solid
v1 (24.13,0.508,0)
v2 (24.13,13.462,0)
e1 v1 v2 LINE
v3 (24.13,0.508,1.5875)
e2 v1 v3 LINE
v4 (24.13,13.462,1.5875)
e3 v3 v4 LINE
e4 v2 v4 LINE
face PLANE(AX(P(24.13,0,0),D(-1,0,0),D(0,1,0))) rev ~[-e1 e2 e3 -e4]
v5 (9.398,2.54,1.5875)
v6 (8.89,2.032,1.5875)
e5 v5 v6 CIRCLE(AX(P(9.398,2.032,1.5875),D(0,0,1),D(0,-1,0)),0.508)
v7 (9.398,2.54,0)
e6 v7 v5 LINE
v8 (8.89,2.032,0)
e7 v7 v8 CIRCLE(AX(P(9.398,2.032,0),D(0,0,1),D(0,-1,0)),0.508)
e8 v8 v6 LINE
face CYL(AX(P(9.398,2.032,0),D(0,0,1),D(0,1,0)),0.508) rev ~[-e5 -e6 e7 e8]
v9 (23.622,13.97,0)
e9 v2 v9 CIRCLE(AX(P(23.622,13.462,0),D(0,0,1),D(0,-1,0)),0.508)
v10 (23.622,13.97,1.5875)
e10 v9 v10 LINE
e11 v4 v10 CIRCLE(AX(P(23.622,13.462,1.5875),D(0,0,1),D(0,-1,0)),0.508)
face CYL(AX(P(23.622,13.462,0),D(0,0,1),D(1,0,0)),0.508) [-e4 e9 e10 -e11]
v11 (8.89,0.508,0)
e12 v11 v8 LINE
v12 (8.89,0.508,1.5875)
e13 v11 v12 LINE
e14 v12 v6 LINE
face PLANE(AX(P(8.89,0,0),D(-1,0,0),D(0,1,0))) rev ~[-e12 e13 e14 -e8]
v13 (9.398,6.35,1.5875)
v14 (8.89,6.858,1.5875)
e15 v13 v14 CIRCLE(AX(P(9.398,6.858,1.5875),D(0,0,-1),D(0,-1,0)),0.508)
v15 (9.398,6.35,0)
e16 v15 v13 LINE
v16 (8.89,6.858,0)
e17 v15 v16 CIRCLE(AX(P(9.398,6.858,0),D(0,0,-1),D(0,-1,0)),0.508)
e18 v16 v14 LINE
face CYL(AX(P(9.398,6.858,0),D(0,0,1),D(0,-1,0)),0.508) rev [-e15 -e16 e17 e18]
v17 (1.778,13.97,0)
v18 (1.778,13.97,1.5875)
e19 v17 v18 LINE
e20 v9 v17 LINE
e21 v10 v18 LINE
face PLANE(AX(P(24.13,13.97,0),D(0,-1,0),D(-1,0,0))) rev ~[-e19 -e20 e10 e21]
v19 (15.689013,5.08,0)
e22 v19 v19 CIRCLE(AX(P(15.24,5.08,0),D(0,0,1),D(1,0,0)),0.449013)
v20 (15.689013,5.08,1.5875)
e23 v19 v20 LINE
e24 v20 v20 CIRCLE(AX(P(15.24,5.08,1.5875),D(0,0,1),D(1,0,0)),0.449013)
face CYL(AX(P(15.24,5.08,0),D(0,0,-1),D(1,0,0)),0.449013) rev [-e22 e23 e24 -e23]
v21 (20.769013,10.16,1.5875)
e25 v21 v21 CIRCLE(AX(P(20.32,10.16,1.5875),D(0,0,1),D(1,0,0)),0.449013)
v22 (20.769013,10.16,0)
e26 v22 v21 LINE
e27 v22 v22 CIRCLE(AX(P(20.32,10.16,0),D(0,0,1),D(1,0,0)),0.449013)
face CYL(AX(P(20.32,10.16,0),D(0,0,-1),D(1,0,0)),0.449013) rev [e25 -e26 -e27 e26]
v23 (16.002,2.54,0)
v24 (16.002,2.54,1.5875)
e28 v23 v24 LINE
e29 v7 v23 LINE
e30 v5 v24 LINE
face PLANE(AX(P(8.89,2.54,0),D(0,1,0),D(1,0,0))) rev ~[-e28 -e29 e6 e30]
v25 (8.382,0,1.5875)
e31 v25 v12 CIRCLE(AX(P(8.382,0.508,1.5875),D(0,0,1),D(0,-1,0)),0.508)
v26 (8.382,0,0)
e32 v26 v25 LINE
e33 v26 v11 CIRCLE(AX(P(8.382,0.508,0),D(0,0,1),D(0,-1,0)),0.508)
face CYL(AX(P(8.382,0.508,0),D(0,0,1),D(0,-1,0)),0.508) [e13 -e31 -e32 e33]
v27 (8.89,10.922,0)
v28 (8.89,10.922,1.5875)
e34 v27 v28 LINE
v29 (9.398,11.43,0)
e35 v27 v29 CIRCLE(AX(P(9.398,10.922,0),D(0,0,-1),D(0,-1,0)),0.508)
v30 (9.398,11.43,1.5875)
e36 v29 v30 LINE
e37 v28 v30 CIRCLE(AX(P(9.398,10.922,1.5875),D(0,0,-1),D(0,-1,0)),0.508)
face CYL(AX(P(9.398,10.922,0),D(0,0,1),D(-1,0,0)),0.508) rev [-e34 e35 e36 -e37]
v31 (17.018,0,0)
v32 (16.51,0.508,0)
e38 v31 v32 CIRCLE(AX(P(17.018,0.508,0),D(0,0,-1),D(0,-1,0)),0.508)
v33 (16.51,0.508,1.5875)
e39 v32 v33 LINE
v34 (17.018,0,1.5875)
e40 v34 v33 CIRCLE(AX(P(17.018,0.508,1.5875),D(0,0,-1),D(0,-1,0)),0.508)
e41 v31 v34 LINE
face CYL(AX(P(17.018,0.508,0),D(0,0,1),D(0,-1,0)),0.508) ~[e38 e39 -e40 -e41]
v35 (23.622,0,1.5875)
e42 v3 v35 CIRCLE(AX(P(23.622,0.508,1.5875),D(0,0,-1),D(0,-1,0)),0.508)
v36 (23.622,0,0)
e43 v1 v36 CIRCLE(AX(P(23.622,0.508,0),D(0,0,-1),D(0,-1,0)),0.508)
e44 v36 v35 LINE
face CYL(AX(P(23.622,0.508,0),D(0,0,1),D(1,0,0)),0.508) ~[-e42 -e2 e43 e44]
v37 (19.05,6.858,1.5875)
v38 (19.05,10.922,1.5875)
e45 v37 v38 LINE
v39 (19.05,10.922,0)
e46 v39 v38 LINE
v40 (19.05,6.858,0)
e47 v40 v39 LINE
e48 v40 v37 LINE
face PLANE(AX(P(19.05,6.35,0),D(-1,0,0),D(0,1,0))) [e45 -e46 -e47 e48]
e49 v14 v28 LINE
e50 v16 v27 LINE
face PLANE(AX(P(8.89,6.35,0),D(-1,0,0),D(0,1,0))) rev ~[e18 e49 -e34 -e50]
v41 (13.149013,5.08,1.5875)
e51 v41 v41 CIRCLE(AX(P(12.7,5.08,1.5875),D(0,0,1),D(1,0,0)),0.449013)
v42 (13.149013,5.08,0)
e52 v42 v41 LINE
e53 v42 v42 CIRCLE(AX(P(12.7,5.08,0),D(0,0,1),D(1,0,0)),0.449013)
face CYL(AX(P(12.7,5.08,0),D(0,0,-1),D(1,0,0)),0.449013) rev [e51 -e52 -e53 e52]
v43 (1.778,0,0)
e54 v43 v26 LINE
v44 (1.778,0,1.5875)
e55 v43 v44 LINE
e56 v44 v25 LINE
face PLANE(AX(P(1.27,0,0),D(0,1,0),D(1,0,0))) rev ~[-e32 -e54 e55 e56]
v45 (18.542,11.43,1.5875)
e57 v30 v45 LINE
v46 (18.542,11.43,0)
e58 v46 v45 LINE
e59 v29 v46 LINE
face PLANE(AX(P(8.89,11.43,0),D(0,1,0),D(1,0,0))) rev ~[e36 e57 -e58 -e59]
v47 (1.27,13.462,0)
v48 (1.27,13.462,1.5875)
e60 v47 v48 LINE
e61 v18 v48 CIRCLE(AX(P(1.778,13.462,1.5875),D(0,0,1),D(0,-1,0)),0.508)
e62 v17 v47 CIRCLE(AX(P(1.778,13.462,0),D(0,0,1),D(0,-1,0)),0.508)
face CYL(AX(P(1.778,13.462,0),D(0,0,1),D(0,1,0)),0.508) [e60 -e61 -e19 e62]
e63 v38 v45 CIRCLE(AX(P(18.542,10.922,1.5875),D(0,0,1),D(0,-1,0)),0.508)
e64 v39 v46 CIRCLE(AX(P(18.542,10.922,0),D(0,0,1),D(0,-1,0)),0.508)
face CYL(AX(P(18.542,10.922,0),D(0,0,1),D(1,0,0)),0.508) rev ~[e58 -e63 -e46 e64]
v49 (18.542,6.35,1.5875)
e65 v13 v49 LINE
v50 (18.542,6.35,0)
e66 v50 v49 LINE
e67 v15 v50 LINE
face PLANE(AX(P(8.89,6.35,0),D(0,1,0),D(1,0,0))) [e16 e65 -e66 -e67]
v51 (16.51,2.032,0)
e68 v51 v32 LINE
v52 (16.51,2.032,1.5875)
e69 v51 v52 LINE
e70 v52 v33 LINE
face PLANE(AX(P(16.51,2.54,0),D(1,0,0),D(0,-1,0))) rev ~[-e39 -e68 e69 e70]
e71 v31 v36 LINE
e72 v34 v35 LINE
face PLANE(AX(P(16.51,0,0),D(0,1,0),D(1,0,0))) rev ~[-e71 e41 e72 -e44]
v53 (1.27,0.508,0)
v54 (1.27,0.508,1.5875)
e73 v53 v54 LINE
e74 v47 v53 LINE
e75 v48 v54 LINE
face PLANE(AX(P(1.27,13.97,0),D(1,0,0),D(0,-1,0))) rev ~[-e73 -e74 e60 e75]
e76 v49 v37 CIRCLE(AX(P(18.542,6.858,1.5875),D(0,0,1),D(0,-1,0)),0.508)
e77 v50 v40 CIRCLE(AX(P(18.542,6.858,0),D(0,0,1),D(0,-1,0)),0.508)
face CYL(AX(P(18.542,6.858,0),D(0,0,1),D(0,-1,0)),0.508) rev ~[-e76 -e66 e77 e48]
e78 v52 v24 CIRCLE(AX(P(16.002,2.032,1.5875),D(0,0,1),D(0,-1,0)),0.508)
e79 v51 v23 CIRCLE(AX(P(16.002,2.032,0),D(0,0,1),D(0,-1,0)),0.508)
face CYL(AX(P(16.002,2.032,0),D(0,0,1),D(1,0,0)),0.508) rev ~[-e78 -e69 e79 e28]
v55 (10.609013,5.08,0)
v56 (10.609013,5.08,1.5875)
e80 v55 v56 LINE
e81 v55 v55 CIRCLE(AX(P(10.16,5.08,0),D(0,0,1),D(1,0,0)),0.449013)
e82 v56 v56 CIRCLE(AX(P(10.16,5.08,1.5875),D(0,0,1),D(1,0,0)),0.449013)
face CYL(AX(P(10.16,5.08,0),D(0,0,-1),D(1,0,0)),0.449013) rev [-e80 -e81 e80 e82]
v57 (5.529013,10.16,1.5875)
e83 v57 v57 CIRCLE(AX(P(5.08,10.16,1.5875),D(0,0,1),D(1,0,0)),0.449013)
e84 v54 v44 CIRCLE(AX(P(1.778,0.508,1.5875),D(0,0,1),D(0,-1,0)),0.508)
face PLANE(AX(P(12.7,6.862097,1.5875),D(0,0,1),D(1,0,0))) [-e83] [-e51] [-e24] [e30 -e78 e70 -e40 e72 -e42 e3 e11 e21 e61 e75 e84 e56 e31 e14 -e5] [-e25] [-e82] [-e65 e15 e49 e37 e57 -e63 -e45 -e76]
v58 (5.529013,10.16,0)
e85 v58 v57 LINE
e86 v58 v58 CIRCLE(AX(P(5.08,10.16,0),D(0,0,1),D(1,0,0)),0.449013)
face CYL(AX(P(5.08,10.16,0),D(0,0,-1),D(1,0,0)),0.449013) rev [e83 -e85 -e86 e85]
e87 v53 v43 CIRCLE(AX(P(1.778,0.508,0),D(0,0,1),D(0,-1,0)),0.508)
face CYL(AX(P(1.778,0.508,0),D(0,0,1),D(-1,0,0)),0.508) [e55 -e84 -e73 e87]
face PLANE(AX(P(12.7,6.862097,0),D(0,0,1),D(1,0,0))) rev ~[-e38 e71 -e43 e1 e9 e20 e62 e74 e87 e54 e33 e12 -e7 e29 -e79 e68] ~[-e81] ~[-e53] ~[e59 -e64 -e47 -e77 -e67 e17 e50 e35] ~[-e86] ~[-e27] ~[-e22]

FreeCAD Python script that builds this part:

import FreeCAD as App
import Part
import Sketcher
from FreeCAD import Vector
Q = App.Units.Quantity


def edges_at(feature, points):
    """Names of the edges that pass closest to the given points."""
    edges = feature.Shape.Edges
    near = lambda p: min(range(len(edges)), key=lambda i: edges[i].distToShape(Part.Vertex(*p))[0])
    return sorted({f"Edge{near(p) + 1}" for p in points})

doc = App.newDocument("Part")
params = doc.addObject("Spreadsheet::Sheet", "Params")
for row, (alias, value) in enumerate([
    ("sketch1_width", "0.9 in"),
    ("sketch1_width2", "0.4 in"),
    ("sketch1_height", "0.1 in"),
    ("sketch1_height2", "0.2 in"),
    ("sketch1_height3", "0.55 in"),
    ("pad1_length", "0.0625 in"),
    ("fillet_radius", "0.02 in"),
], start=1):
    params.set(f"A{row}", alias)
    params.set(f"B{row}", "=" + value)
    params.setAlias(f"B{row}", alias)

body = doc.addObject("PartDesign::Body", "Body")

sketch1 = body.newObject("Sketcher::SketchObject", "Sketch")
sketch1.AttachmentSupport = (doc.getObject("XY_Plane"), [""])
sketch1.MapMode = "FlatFace"
sketch1.addGeometry(Part.LineSegment(Vector(24.13, 0, 0), Vector(24.13, 13.97, 0)), False)
sketch1.addGeometry(Part.LineSegment(Vector(24.13, 13.97, 0), Vector(1.27, 13.97, 0)), False)
sketch1.addGeometry(Part.LineSegment(Vector(1.27, 13.97, 0), Vector(1.27, 0, 0)), False)
sketch1.addGeometry(Part.LineSegment(Vector(1.27, 0, 0), Vector(8.89, 0, 0)), False)
sketch1.addGeometry(Part.LineSegment(Vector(8.89, 0, 0), Vector(8.89, 2.54, 0)), False)
sketch1.addGeometry(Part.LineSegment(Vector(8.89, 2.54, 0), Vector(16.51, 2.54, 0)), False)
sketch1.addGeometry(Part.LineSegment(Vector(16.51, 2.54, 0), Vector(16.51, 0, 0)), False)
sketch1.addGeometry(Part.LineSegment(Vector(16.51, 0, 0), Vector(24.13, 0, 0)), False)
sketch1.addGeometry(Part.Circle(Vector(10.16, 5.08, 0), Vector(0, 0, 1), 0.449013), False)
sketch1.addGeometry(Part.Circle(Vector(12.7, 5.08, 0), Vector(0, 0, 1), 0.449013), False)
sketch1.addGeometry(Part.Circle(Vector(15.24, 5.08, 0), Vector(0, 0, 1), 0.449013), False)
sketch1.addGeometry(Part.Circle(Vector(5.08, 10.16, 0), Vector(0, 0, 1), 0.449013), False)
sketch1.addGeometry(Part.LineSegment(Vector(19.05, 6.35, 0), Vector(8.89, 6.35, 0)), False)
sketch1.addGeometry(Part.LineSegment(Vector(8.89, 6.35, 0), Vector(8.89, 11.43, 0)), False)
sketch1.addGeometry(Part.LineSegment(Vector(8.89, 11.43, 0), Vector(19.05, 11.43, 0)), False)
sketch1.addGeometry(Part.LineSegment(Vector(19.05, 11.43, 0), Vector(19.05, 6.35, 0)), False)
sketch1.addGeometry(Part.Circle(Vector(20.32, 10.16, 0), Vector(0, 0, 1), 0.449013), False)
sketch1.addConstraint(Sketcher.Constraint("Coincident", 0, 2, 1, 1))
sketch1.addConstraint(Sketcher.Constraint("Coincident", 1, 2, 2, 1))
sketch1.addConstraint(Sketcher.Constraint("Coincident", 2, 2, 3, 1))
sketch1.addConstraint(Sketcher.Constraint("Coincident", 3, 2, 4, 1))
sketch1.addConstraint(Sketcher.Constraint("Coincident", 4, 2, 5, 1))
sketch1.addConstraint(Sketcher.Constraint("Coincident", 5, 2, 6, 1))
sketch1.addConstraint(Sketcher.Constraint("Coincident", 6, 2, 7, 1))
sketch1.addConstraint(Sketcher.Constraint("Coincident", 7, 2, 0, 1))
sketch1.addConstraint(Sketcher.Constraint("Coincident", 12, 2, 13, 1))
sketch1.addConstraint(Sketcher.Constraint("Coincident", 13, 2, 14, 1))
sketch1.addConstraint(Sketcher.Constraint("Coincident", 14, 2, 15, 1))
sketch1.addConstraint(Sketcher.Constraint("Coincident", 15, 2, 12, 1))
sketch1.addConstraint(Sketcher.Constraint("Vertical", 0))
sketch1.addConstraint(Sketcher.Constraint("Horizontal", 1))
sketch1.addConstraint(Sketcher.Constraint("Vertical", 2))
sketch1.addConstraint(Sketcher.Constraint("Horizontal", 3))
sketch1.addConstraint(Sketcher.Constraint("Vertical", 4))
sketch1.addConstraint(Sketcher.Constraint("Horizontal", 5))
sketch1.addConstraint(Sketcher.Constraint("Vertical", 6))
sketch1.addConstraint(Sketcher.Constraint("Horizontal", 7))
sketch1.addConstraint(Sketcher.Constraint("Horizontal", 12))
sketch1.addConstraint(Sketcher.Constraint("Vertical", 13))
sketch1.addConstraint(Sketcher.Constraint("Horizontal", 14))
sketch1.addConstraint(Sketcher.Constraint("Vertical", 15))
sketch1.addConstraint(Sketcher.Constraint("Equal", 8, 9))
sketch1.addConstraint(Sketcher.Constraint("Equal", 9, 10))
sketch1.addConstraint(Sketcher.Constraint("Equal", 10, 11))
sketch1.addConstraint(Sketcher.Constraint("Equal", 11, 16))
sketch1.addConstraint(Sketcher.Constraint("PointOnObject", 2, 2, -1))
sketch1.addConstraint(Sketcher.Constraint("PointOnObject", 6, 2, -1))
sketch1.addConstraint(Sketcher.Constraint("Horizontal", 8, 3, 9, 3))
sketch1.addConstraint(Sketcher.Constraint("Horizontal", 9, 3, 10, 3))
sketch1.addConstraint(Sketcher.Constraint("Horizontal", 11, 3, 16, 3))
sketch1.addConstraint(Sketcher.Constraint("Vertical", 4, 2, 12, 2))
sketch1.addConstraint(Sketcher.Constraint("Equal", 3, 5))
sketch1.addConstraint(Sketcher.Constraint("Equal", 5, 7))
sketch1.addConstraint(Sketcher.Constraint("DistanceX", 1, 2, 1, 1, Q("0.9 in")))
sketch1.addConstraint(Sketcher.Constraint("DistanceX", 12, 2, 12, 1, Q("0.4 in")))
sketch1.addConstraint(Sketcher.Constraint("DistanceY", 4, 1, 4, 2, Q("0.1 in")))
sketch1.addConstraint(Sketcher.Constraint("DistanceY", 13, 1, 13, 2, Q("0.2 in")))
sketch1.addConstraint(Sketcher.Constraint("DistanceY", 0, 1, 0, 2, Q("0.55 in")))
sketch1.addConstraint(Sketcher.Constraint("DistanceX", -1, 1, 8, 3, Q("0.4 in")))
sketch1.addConstraint(Sketcher.Constraint("DistanceY", -1, 1, 8, 3, Q("0.2 in")))
sketch1.addConstraint(Sketcher.Constraint("DistanceX", -1, 1, 9, 3, Q("0.5 in")))
sketch1.addConstraint(Sketcher.Constraint("DistanceX", -1, 1, 10, 3, Q("0.6 in")))
sketch1.addConstraint(Sketcher.Constraint("DistanceX", -1, 1, 11, 3, Q("0.2 in")))
sketch1.addConstraint(Sketcher.Constraint("DistanceY", -1, 1, 11, 3, Q("0.4 in")))
sketch1.addConstraint(Sketcher.Constraint("DistanceX", -1, 1, 16, 3, Q("0.8 in")))
sketch1.addConstraint(Sketcher.Constraint("DistanceY", 13, 2, 1, 2, Q("0.1 in")))
sketch1.addConstraint(Sketcher.Constraint("DistanceX", -1, 1, 0, 2, Q("0.95 in")))
sketch1.addConstraint(Sketcher.Constraint("Diameter", 8, 0.898026))
sketch1.setExpression("Constraints[36]", "Params.sketch1_width")
sketch1.setExpression("Constraints[37]", "Params.sketch1_width2")
sketch1.setExpression("Constraints[38]", "Params.sketch1_height")
sketch1.setExpression("Constraints[39]", "Params.sketch1_height2")
sketch1.setExpression("Constraints[40]", "Params.sketch1_height3")
pad1 = body.newObject("PartDesign::Pad", "Pad")
pad1.Profile = sketch1
pad1.setExpression("Length", "Params.pad1_length")
doc.recompute()

fillet = body.newObject("PartDesign::Fillet", "Fillet")
fillet.Base = (pad1, edges_at(pad1, [
    (1.27, 0, 0.794),
    (8.89, 0, 0.794),
    (16.51, 2.54, 0.794),
    (16.51, 0, 0.794),
    (24.13, 0, 0.794),
    (8.89, 11.43, 0.794),
    (8.89, 2.54, 0.794),
    (24.13, 13.97, 0.794),
    (8.89, 6.35, 0.794),
    (1.27, 13.97, 0.794),
    (19.05, 6.35, 0.794),
    (19.05, 11.43, 0.794),
]))
fillet.setExpression("Radius", "Params.fillet_radius")

doc.recompute()
